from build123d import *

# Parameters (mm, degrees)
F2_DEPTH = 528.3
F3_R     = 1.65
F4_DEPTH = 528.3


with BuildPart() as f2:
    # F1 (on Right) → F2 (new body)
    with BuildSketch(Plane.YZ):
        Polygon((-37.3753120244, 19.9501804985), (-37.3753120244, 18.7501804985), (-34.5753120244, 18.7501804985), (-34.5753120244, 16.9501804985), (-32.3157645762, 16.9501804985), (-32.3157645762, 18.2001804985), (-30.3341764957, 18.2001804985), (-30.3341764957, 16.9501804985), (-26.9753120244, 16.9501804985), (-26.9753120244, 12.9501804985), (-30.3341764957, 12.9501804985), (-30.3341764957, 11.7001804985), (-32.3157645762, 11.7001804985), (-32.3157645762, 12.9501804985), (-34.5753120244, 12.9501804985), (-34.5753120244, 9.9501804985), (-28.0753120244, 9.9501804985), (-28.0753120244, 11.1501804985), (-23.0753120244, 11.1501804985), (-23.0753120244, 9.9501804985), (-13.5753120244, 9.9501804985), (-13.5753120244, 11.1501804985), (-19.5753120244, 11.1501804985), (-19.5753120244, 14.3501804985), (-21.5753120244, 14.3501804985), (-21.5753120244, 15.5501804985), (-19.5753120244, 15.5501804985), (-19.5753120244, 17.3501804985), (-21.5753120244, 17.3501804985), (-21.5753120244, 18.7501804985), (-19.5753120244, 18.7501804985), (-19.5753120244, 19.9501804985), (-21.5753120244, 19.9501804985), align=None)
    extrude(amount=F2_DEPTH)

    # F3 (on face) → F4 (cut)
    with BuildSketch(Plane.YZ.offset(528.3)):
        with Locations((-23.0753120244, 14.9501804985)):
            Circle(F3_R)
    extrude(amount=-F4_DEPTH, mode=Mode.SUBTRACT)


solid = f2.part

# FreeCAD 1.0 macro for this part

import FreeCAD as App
import Part
import Sketcher

V = App.Vector
Q = App.Units.Quantity


def add_polygon(sketch, points):
    """Adds a closed chain of lines whose ends are joined by coincident constraints."""
    first, n = sketch.GeometryCount, len(points)
    for a, b in zip(points, points[1:] + points[:1]):
        sketch.addGeometry(Part.LineSegment(App.Vector(*a, 0), App.Vector(*b, 0)), False)
    for i in range(n):
        sketch.addConstraint(Sketcher.Constraint("Coincident", first + i, 2, first + (i + 1) % n, 1))

doc = App.newDocument("Part")
params = doc.addObject("Spreadsheet::Sheet", "Params")
for row, (alias, value) in enumerate([
    ("sketch1_width", "5 mm"),
    ("sketch1_width2", "6 mm"),
    ("sketch1_width3", "2 mm"),
    ("sketch1_height", "4 mm"),
    ("sketch1_height2", "3 mm"),
    ("pad1_length", "528.3 mm"),
    ("sketch2_diameter", "3.3 mm"),
    ("pocket1_length", "528.3 mm"),
], start=1):
    params.set(f"A{row}", alias)
    params.set(f"B{row}", "=" + value)
    params.setAlias(f"B{row}", alias)

body = doc.addObject("PartDesign::Body", "Body")

sketch1 = body.newObject("Sketcher::SketchObject", "Sketch")
sketch1.AttachmentSupport = (doc.getObject("YZ_Plane"), [""])
sketch1.MapMode = "FlatFace"
add_polygon(sketch1, [(-37.4, 20), (-37.4, 18.8), (-34.6, 18.8), (-34.6, 17), (-32.3, 17), (-32.3, 18.2), (-30.3, 18.2), (-30.3, 17), (-27, 17), (-27, 13), (-30.3, 13), (-30.3, 11.7), (-32.3, 11.7), (-32.3, 13), (-34.6, 13), (-34.6, 10), (-28.1, 10), (-28.1, 11.2), (-23.1, 11.2), (-23.1, 10), (-13.6, 10), (-13.6, 11.2), (-19.6, 11.2), (-19.6, 14.4), (-21.6, 14.4), (-21.6, 15.6), (-19.6, 15.6), (-19.6, 17.4), (-21.6, 17.4), (-21.6, 18.8), (-19.6, 18.8), (-19.6, 20)])
sketch1.addConstraint(Sketcher.Constraint("Vertical", 0))
sketch1.addConstraint(Sketcher.Constraint("Horizontal", 1))
sketch1.addConstraint(Sketcher.Constraint("Vertical", 2))
sketch1.addConstraint(Sketcher.Constraint("Horizontal", 3))
sketch1.addConstraint(Sketcher.Constraint("Vertical", 4))
sketch1.addConstraint(Sketcher.Constraint("Horizontal", 5))
sketch1.addConstraint(Sketcher.Constraint("Vertical", 6))
sketch1.addConstraint(Sketcher.Constraint("Horizontal", 7))
sketch1.addConstraint(Sketcher.Constraint("Vertical", 8))
sketch1.addConstraint(Sketcher.Constraint("Horizontal", 9))
sketch1.addConstraint(Sketcher.Constraint("Vertical", 10))
sketch1.addConstraint(Sketcher.Constraint("Horizontal", 11))
sketch1.addConstraint(Sketcher.Constraint("Vertical", 12))
sketch1.addConstraint(Sketcher.Constraint("Horizontal", 13))
sketch1.addConstraint(Sketcher.Constraint("Vertical", 14))
sketch1.addConstraint(Sketcher.Constraint("Horizontal", 15))
sketch1.addConstraint(Sketcher.Constraint("Vertical", 16))
sketch1.addConstraint(Sketcher.Constraint("Horizontal", 17))
sketch1.addConstraint(Sketcher.Constraint("Vertical", 18))
sketch1.addConstraint(Sketcher.Constraint("Horizontal", 19))
sketch1.addConstraint(Sketcher.Constraint("Vertical", 20))
sketch1.addConstraint(Sketcher.Constraint("Horizontal", 21))
sketch1.addConstraint(Sketcher.Constraint("Vertical", 22))
sketch1.addConstraint(Sketcher.Constraint("Horizontal", 23))
sketch1.addConstraint(Sketcher.Constraint("Vertical", 24))
sketch1.addConstraint(Sketcher.Constraint("Horizontal", 25))
sketch1.addConstraint(Sketcher.Constraint("Vertical", 26))
sketch1.addConstraint(Sketcher.Constraint("Horizontal", 27))
sketch1.addConstraint(Sketcher.Constraint("Vertical", 28))
sketch1.addConstraint(Sketcher.Constraint("Horizontal", 29))
sketch1.addConstraint(Sketcher.Constraint("Vertical", 30))
sketch1.addConstraint(Sketcher.Constraint("Horizontal", 31))
sketch1.addConstraint(Sketcher.Constraint("Horizontal", 3, 2, 6, 2))
sketch1.addConstraint(Sketcher.Constraint("Horizontal", 9, 2, 12, 2))
sketch1.addConstraint(Sketcher.Constraint("Horizontal", 15, 2, 18, 2))
sketch1.addConstraint(Sketcher.Constraint("Horizontal", 17, 2, 20, 2))
sketch1.addConstraint(Sketcher.Constraint("Horizontal", 1, 2, 28, 2))
sketch1.addConstraint(Sketcher.Constraint("Vertical", 6, 2, 9, 2))
sketch1.addConstraint(Sketcher.Constraint("Vertical", 4, 2, 11, 2))
sketch1.addConstraint(Sketcher.Constraint("Vertical", 2, 2, 13, 2))
sketch1.addConstraint(Sketcher.Constraint("Vertical", 22, 2, 25, 2))
sketch1.addConstraint(Sketcher.Constraint("Vertical", 24, 2, 27, 2))
sketch1.addConstraint(Sketcher.Constraint("Vertical", 26, 2, 29, 2))
sketch1.addConstraint(Sketcher.Constraint("Equal", 6, 10))
sketch1.addConstraint(Sketcher.Constraint("Equal", 0, 16))
sketch1.addConstraint(Sketcher.Constraint("Equal", 20, 24))
sketch1.addConstraint(Sketcher.Constraint("Equal", 2, 26))
sketch1.addConstraint(Sketcher.Constraint("DistanceX", 17, 1, 17, 2, Q("5 mm")))
sketch1.addConstraint(Sketcher.Constraint("DistanceX", 21, 2, 21, 1, Q("6 mm")))
sketch1.addConstraint(Sketcher.Constraint("DistanceX", 23, 2, 23, 1, Q("2 mm")))
sketch1.addConstraint(Sketcher.Constraint("DistanceY", 8, 2, 8, 1, Q("4 mm")))
sketch1.addConstraint(Sketcher.Constraint("DistanceY", 14, 2, 14, 1, Q("3 mm")))
sketch1.addConstraint(Sketcher.Constraint("DistanceX", 1, 1, 1, 2, Q("2.8 mm")))
sketch1.addConstraint(Sketcher.Constraint("DistanceX", 15, 1, 15, 2, Q("6.5 mm")))
sketch1.addConstraint(Sketcher.Constraint("DistanceX", 19, 1, 19, 2, Q("9.5 mm")))
sketch1.addConstraint(Sketcher.Constraint("DistanceY", 0, 2, 0, 1, Q("1.2 mm")))
sketch1.addConstraint(Sketcher.Constraint("DistanceY", 2, 2, 2, 1, Q("1.8 mm")))
sketch1.addConstraint(Sketcher.Constraint("DistanceY", 22, 1, 22, 2, Q("3.2 mm")))
sketch1.addConstraint(Sketcher.Constraint("DistanceY", 4, 1, 4, 2, Q("1.25 mm")))
sketch1.addConstraint(Sketcher.Constraint("DistanceX", 2, 2, 7, 2, Q("7.6 mm")))
sketch1.addConstraint(Sketcher.Constraint("DistanceX", 5, 1, 5, 2, Q("1.981588 mm")))
sketch1.addConstraint(Sketcher.Constraint("DistanceX", 3, 1, 3, 2, Q("2.259547 mm")))
sketch1.addConstraint(Sketcher.Constraint("DistanceY", -1, 1, 0, 2, Q("18.75018 mm")))
sketch1.addConstraint(Sketcher.Constraint("DistanceX", 0, 2, -1, 1, Q("37.375312 mm")))
sketch1.setExpression("Constraints[79]", "Params.sketch1_width")
sketch1.setExpression("Constraints[80]", "Params.sketch1_width2")
sketch1.setExpression("Constraints[81]", "Params.sketch1_width3")
sketch1.setExpression("Constraints[82]", "Params.sketch1_height")
sketch1.setExpression("Constraints[83]", "Params.sketch1_height2")
pad1 = body.newObject("PartDesign::Pad", "Pad")
pad1.Profile = sketch1
pad1.setExpression("Length", "Params.pad1_length")

sketch2 = body.newObject("Sketcher::SketchObject", "Sketch001")
sketch2.AttachmentSupport = (doc.getObject("YZ_Plane"), [""])
sketch2.MapMode = "FlatFace"
sketch2.AttachmentOffset = App.Placement(V(0, 0, 528.3), App.Rotation())
sketch2.addGeometry(Part.Circle(V(-23.1, 15, 0), V(0, 0, 1), 1.6), False)
sketch2.addConstraint(Sketcher.Constraint("Diameter", 0, Q("3.3 mm")))
sketch2.addConstraint(Sketcher.Constraint("DistanceY", -1, 1, 0, 3, Q("14.95018 mm")))
sketch2.addConstraint(Sketcher.Constraint("DistanceX", 0, 3, -1, 1, Q("23.075312 mm")))
sketch2.setExpression("Constraints[0]", "Params.sketch2_diameter")
pocket1 = body.newObject("PartDesign::Pocket", "Pocket")
pocket1.Profile = sketch2
pocket1.setExpression("Length", "Params.pocket1_length")

doc.recompute()
